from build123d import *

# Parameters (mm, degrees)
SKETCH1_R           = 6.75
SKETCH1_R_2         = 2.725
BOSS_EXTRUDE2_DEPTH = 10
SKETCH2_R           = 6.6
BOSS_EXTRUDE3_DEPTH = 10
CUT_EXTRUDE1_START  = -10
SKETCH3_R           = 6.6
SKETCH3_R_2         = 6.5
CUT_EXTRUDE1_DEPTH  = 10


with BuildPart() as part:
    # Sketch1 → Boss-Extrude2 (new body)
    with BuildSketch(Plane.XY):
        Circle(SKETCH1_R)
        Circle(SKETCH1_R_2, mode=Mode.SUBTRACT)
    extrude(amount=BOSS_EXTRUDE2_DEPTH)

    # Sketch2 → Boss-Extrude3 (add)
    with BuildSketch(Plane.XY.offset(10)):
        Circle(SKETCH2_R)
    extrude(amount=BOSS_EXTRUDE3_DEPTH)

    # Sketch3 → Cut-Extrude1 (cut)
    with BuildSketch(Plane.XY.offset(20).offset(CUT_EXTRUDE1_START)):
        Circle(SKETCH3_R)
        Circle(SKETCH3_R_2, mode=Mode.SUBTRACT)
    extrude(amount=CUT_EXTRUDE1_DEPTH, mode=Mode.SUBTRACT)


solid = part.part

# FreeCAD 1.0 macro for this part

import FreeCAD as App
import Part
import Sketcher
Q = App.Units.Quantity

doc = App.newDocument("Part")
body = doc.addObject("PartDesign::Body", "Body")

# Sketch on XY plane
sketch1 = doc.addObject("Sketcher::SketchObject", "Sketch")
body.addObject(sketch1)
sketch1.AttachmentSupport = (doc.XY_Plane, [""])
sketch1.MapMode = "FlatFace"
sketch1.addGeometry([
    Part.Circle(App.Vector(0, 0, 0), App.Vector(0, 0, 1), 6.8),
    Part.Circle(App.Vector(0, 0, 0), App.Vector(0, 0, 1), 2.7),
], False)
sketch1.addConstraint([
    Sketcher.Constraint("Coincident", 0, 3, -1, 1),
    Sketcher.Constraint("Coincident", 1, 3, -1, 1),
    Sketcher.Constraint("Diameter", 0, Q("13.5 mm")),
    Sketcher.Constraint("Diameter", 1, Q("5.45 mm")),
])
pad1 = doc.addObject("PartDesign::Pad", "Pad")
body.addObject(pad1)
pad1.Profile = sketch1
pad1.Length = 10

# Sketch on XY plane
sketch2 = doc.addObject("Sketcher::SketchObject", "Sketch001")
body.addObject(sketch2)
sketch2.AttachmentSupport = (doc.XY_Plane, [""])
sketch2.MapMode = "FlatFace"
sketch2.AttachmentOffset = App.Placement(App.Vector(0, 0, 10), App.Rotation())
sketch2.addGeometry(Part.Circle(App.Vector(0, 0, 0), App.Vector(0, 0, 1), 7), False)
sketch2.addConstraint([
    Sketcher.Constraint("Coincident", 0, 3, -1, 1),
    Sketcher.Constraint("Diameter", 0, Q("13.2 mm")),
])
pad2 = doc.addObject("PartDesign::Pad", "Pad001")
body.addObject(pad2)
pad2.Profile = sketch2
pad2.Length = 10

# Sketch on XY plane
sketch3 = doc.addObject("Sketcher::SketchObject", "Sketch002")
body.addObject(sketch3)
sketch3.AttachmentSupport = (doc.XY_Plane, [""])
sketch3.MapMode = "FlatFace"
sketch3.AttachmentOffset = App.Placement(App.Vector(0, 0, 10), App.Rotation())
sketch3.addGeometry([
    Part.Circle(App.Vector(0, 0, 0), App.Vector(0, 0, 1), 7),
    Part.Circle(App.Vector(0, 0, 0), App.Vector(0, 0, 1), 6),
], False)
sketch3.addConstraint([
    Sketcher.Constraint("Coincident", 0, 3, -1, 1),
    Sketcher.Constraint("Coincident", 1, 3, -1, 1),
    Sketcher.Constraint("Diameter", 1, Q("13 mm")),
    Sketcher.Constraint("Diameter", 0, Q("13.2 mm")),
])
pocket1 = doc.addObject("PartDesign::Pocket", "Pocket")
body.addObject(pocket1)
pocket1.Profile = sketch3
pocket1.Length = 10
pocket1.Reversed = True

doc.recompute()
